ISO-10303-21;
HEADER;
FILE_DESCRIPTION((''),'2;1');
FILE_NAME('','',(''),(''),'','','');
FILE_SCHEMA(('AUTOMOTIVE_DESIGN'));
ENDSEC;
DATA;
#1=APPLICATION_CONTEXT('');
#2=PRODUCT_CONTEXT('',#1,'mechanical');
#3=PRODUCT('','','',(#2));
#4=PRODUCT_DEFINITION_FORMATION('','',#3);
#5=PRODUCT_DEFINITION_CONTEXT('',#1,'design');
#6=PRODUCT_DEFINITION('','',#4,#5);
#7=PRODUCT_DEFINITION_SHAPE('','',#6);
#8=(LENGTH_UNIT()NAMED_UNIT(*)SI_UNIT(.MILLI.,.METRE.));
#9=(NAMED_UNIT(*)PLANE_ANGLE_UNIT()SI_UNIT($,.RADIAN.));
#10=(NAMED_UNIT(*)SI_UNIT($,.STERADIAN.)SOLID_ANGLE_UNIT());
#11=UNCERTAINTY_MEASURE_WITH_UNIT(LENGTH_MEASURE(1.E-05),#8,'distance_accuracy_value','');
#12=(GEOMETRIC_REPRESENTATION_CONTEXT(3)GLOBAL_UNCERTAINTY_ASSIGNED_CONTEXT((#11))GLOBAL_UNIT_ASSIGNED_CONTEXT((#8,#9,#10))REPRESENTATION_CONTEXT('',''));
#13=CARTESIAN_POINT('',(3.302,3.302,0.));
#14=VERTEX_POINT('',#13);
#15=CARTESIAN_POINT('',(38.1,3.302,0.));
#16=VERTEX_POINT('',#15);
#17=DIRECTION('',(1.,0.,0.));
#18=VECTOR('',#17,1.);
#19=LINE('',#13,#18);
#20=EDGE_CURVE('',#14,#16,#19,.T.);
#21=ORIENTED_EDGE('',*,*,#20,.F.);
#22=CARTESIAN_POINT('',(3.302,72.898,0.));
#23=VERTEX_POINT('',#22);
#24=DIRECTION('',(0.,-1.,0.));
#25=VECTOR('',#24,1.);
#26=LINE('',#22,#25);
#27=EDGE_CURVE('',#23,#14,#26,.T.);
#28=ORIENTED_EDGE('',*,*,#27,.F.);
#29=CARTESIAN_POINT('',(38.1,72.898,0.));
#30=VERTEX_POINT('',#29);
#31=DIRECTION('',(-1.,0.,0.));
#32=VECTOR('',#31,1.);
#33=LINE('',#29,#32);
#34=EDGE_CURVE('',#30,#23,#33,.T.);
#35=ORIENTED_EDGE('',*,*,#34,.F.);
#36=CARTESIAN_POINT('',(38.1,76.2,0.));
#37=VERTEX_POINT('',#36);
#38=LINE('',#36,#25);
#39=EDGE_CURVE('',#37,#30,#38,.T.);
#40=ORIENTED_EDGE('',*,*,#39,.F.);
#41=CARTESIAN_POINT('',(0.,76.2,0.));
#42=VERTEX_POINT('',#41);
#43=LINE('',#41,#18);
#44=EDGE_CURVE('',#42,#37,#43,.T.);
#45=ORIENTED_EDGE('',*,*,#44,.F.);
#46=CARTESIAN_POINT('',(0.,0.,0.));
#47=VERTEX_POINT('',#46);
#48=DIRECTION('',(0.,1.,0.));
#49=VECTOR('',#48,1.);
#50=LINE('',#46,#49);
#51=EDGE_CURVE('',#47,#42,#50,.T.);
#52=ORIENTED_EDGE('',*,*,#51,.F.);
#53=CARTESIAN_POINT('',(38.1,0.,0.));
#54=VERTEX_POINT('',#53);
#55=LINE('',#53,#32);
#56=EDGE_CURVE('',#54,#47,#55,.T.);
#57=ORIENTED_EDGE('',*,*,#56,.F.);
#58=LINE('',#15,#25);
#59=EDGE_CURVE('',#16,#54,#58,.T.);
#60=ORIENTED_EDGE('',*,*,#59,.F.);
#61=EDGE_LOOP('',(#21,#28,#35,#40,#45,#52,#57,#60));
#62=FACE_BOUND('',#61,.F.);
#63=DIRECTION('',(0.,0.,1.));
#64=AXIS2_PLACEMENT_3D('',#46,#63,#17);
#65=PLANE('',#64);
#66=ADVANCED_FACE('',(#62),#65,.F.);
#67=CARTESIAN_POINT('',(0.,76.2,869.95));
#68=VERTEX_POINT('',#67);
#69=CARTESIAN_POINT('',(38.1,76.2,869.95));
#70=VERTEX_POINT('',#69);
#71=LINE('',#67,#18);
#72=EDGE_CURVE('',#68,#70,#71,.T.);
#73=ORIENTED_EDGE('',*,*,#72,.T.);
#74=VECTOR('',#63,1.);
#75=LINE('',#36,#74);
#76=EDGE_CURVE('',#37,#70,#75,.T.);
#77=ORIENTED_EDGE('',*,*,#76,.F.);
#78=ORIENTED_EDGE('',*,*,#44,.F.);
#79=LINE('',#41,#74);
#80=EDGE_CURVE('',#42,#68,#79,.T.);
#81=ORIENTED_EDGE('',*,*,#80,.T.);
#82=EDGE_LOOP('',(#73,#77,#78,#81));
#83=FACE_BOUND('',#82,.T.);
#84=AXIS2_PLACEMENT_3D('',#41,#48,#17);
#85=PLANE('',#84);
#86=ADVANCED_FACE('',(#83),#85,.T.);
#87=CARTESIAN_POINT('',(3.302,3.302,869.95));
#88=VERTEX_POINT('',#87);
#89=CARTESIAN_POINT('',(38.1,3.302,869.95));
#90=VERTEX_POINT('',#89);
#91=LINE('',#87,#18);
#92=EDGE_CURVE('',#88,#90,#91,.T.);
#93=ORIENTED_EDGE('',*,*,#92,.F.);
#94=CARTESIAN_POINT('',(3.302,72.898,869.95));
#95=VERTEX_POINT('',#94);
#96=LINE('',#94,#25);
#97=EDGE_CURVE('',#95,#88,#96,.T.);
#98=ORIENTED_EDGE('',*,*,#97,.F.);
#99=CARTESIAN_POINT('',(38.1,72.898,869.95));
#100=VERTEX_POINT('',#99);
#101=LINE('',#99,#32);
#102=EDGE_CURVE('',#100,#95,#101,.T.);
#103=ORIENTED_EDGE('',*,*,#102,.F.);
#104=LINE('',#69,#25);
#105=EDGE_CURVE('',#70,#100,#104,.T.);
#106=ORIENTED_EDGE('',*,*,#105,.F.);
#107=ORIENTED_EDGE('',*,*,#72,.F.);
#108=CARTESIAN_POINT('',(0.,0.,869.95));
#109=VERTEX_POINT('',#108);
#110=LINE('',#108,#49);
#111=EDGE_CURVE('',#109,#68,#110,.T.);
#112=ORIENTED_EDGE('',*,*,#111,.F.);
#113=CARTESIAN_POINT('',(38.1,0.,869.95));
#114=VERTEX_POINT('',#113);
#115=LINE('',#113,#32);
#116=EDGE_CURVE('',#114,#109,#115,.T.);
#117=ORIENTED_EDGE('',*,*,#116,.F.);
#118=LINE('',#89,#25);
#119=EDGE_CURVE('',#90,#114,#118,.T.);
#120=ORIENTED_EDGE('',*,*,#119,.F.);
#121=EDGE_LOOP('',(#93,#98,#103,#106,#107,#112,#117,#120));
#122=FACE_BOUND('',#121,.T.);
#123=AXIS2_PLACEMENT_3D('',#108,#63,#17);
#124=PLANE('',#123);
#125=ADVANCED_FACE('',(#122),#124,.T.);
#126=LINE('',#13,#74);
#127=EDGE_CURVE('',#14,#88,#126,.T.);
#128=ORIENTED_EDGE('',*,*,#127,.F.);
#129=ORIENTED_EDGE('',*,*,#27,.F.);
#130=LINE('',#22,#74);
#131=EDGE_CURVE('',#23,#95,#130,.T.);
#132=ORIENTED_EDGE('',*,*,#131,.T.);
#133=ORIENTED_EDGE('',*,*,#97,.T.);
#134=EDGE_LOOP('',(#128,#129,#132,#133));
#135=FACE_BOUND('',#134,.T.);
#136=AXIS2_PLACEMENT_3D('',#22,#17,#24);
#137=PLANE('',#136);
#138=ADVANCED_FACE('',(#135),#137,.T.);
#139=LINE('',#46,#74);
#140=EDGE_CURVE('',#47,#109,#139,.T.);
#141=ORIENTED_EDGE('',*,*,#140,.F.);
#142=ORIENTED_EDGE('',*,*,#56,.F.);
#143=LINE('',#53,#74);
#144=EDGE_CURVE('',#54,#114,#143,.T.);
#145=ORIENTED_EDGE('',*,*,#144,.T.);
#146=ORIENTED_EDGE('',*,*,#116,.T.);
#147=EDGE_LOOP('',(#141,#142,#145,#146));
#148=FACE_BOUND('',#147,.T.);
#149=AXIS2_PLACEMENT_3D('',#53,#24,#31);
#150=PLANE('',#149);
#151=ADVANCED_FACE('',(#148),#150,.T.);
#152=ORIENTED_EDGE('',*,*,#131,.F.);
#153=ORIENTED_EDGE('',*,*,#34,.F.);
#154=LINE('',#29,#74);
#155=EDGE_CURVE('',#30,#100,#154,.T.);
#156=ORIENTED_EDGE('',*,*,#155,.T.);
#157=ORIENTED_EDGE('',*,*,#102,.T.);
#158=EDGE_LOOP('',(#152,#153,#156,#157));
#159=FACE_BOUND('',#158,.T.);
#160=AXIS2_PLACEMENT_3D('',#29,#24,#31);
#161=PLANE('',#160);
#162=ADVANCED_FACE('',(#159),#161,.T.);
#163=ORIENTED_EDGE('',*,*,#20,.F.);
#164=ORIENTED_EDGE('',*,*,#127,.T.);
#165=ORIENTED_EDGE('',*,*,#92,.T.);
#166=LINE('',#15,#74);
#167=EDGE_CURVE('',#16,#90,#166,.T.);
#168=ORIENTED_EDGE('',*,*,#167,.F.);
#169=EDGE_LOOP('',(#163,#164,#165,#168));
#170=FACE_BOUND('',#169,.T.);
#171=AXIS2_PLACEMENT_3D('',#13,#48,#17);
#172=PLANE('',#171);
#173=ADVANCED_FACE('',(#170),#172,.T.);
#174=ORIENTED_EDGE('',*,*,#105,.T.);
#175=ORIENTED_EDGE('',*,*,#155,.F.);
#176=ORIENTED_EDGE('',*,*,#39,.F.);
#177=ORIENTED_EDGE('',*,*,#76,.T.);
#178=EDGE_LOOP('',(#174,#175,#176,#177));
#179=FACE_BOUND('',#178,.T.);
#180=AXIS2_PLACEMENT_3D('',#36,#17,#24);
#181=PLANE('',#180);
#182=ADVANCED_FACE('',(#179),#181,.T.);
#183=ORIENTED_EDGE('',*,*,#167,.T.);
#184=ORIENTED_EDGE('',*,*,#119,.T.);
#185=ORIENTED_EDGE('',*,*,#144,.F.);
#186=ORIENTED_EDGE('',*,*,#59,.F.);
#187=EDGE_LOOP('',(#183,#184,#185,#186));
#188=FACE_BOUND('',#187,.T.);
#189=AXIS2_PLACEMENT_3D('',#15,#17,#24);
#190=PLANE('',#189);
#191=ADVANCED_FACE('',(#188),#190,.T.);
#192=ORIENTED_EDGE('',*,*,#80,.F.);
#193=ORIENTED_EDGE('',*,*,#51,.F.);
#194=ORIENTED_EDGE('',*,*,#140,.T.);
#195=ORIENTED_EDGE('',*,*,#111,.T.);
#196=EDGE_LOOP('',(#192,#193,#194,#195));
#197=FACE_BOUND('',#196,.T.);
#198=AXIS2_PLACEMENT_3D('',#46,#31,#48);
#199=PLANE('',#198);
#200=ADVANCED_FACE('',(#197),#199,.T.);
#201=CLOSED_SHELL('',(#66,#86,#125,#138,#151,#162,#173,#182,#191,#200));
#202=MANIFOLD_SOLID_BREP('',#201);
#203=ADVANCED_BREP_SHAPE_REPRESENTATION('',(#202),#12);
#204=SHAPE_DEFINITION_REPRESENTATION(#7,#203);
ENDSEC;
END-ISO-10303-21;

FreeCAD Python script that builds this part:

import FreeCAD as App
import Part
import Sketcher

V = App.Vector
Q = App.Units.Quantity

doc = App.newDocument("Part")
body = doc.addObject("PartDesign::Body", "Body")

sketch1 = body.newObject("Sketcher::SketchObject", "Sketch")
sketch1.AttachmentSupport = (doc.getObject("XY_Plane"), [""])
sketch1.MapMode = "FlatFace"
sketch1.addGeometry(Part.LineSegment(V(0, 76.2, 0), V(0, 0, 0)), False)
sketch1.addGeometry(Part.LineSegment(V(0, 0, 0), V(38.1, 0, 0)), False)
sketch1.addGeometry(Part.LineSegment(V(38.1, 0, 0), V(38.1, 3.302, 0)), False)
sketch1.addGeometry(Part.LineSegment(V(38.1, 3.302, 0), V(3.302, 3.302, 0)), False)
sketch1.addGeometry(Part.LineSegment(V(3.302, 3.302, 0), V(3.302, 72.898, 0)), False)
sketch1.addGeometry(Part.LineSegment(V(3.302, 72.898, 0), V(38.1, 72.898, 0)), False)
sketch1.addGeometry(Part.LineSegment(V(38.1, 72.898, 0), V(38.1, 76.2, 0)), False)
sketch1.addGeometry(Part.LineSegment(V(38.1, 76.2, 0), V(0, 76.2, 0)), False)
sketch1.addConstraint(Sketcher.Constraint("Coincident", 0, 2, 1, 1))
sketch1.addConstraint(Sketcher.Constraint("Coincident", 1, 2, 2, 1))
sketch1.addConstraint(Sketcher.Constraint("Coincident", 2, 2, 3, 1))
sketch1.addConstraint(Sketcher.Constraint("Coincident", 3, 2, 4, 1))
sketch1.addConstraint(Sketcher.Constraint("Coincident", 4, 2, 5, 1))
sketch1.addConstraint(Sketcher.Constraint("Coincident", 5, 2, 6, 1))
sketch1.addConstraint(Sketcher.Constraint("Coincident", 6, 2, 7, 1))
sketch1.addConstraint(Sketcher.Constraint("Coincident", 7, 2, 0, 1))
sketch1.addConstraint(Sketcher.Constraint("Vertical", 0))
sketch1.addConstraint(Sketcher.Constraint("Horizontal", 1))
sketch1.addConstraint(Sketcher.Constraint("Vertical", 2))
sketch1.addConstraint(Sketcher.Constraint("Horizontal", 3))
sketch1.addConstraint(Sketcher.Constraint("Vertical", 4))
sketch1.addConstraint(Sketcher.Constraint("Horizontal", 5))
sketch1.addConstraint(Sketcher.Constraint("Vertical", 6))
sketch1.addConstraint(Sketcher.Constraint("Horizontal", 7))
sketch1.addConstraint(Sketcher.Constraint("Coincident", 0, 2, -1, 1))
sketch1.addConstraint(Sketcher.Constraint("Vertical", 2, 2, 5, 2))
sketch1.addConstraint(Sketcher.Constraint("Equal", 2, 6))
sketch1.addConstraint(Sketcher.Constraint("DistanceY", 0, 2, 0, 1, Q("3 in")))
sketch1.addConstraint(Sketcher.Constraint("DistanceX", 1, 1, 1, 2, Q("1.5 in")))
sketch1.addConstraint(Sketcher.Constraint("DistanceY", 2, 1, 2, 2, Q("0.13 in")))
sketch1.addConstraint(Sketcher.Constraint("DistanceX", -1, 1, 3, 2, Q("0.13 in")))
pad1 = body.newObject("PartDesign::Pad", "Pad")
pad1.Profile = sketch1
pad1.Length = Q("34.25 in")

doc.recompute()
